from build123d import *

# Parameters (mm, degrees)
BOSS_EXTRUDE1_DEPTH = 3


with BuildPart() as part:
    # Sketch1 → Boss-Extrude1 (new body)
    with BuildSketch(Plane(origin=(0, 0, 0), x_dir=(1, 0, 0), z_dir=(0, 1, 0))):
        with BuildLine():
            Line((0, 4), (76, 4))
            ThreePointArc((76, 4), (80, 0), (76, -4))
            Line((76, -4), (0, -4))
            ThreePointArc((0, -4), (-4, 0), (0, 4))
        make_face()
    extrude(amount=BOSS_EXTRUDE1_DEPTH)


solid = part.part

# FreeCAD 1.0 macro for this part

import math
import FreeCAD as App
import Part
import Sketcher

doc = App.newDocument("Part")
body = doc.addObject("PartDesign::Body", "Body")

# Sketch on XZ plane
sketch1 = body.newObject("Sketcher::SketchObject", "Sketch")
sketch1.AttachmentSupport = (doc.getObject("XZ_Plane"), [""])
sketch1.MapMode = "FlatFace"
sketch1.addGeometry(Part.LineSegment(App.Vector(76, -4, 0), App.Vector(0, -4, 0)), False)
sketch1.addGeometry(Part.ArcOfCircle(Part.Circle(App.Vector(0, 0, 0), App.Vector(0, 0, 1), 4), math.radians(90), math.radians(270)), False)
sketch1.addGeometry(Part.LineSegment(App.Vector(0, 4, 0), App.Vector(76, 4, 0)), False)
sketch1.addGeometry(Part.ArcOfCircle(Part.Circle(App.Vector(76, 0, 0), App.Vector(0, 0, 1), 4), math.radians(-90), math.radians(90)), False)
sketch1.addConstraint(Sketcher.Constraint("Tangent", 0, 2, 1, 2))
sketch1.addConstraint(Sketcher.Constraint("Tangent", 1, 1, 2, 1))
sketch1.addConstraint(Sketcher.Constraint("Tangent", 2, 2, 3, 2))
sketch1.addConstraint(Sketcher.Constraint("Tangent", 3, 1, 0, 1))
sketch1.addConstraint(Sketcher.Constraint("Horizontal", 0))
sketch1.addConstraint(Sketcher.Constraint("Horizontal", 2))
sketch1.addConstraint(Sketcher.Constraint("Coincident", 1, 3, -1, 1))
sketch1.addConstraint(Sketcher.Constraint("Radius", 1, 4.0))
sketch1.addConstraint(Sketcher.Constraint("DistanceX", 0, 2, 0, 1, 76.0))
pad1 = body.newObject("PartDesign::Pad", "Pad")
pad1.Profile = sketch1
pad1.Length = 3
pad1.Reversed = True

doc.recompute()
